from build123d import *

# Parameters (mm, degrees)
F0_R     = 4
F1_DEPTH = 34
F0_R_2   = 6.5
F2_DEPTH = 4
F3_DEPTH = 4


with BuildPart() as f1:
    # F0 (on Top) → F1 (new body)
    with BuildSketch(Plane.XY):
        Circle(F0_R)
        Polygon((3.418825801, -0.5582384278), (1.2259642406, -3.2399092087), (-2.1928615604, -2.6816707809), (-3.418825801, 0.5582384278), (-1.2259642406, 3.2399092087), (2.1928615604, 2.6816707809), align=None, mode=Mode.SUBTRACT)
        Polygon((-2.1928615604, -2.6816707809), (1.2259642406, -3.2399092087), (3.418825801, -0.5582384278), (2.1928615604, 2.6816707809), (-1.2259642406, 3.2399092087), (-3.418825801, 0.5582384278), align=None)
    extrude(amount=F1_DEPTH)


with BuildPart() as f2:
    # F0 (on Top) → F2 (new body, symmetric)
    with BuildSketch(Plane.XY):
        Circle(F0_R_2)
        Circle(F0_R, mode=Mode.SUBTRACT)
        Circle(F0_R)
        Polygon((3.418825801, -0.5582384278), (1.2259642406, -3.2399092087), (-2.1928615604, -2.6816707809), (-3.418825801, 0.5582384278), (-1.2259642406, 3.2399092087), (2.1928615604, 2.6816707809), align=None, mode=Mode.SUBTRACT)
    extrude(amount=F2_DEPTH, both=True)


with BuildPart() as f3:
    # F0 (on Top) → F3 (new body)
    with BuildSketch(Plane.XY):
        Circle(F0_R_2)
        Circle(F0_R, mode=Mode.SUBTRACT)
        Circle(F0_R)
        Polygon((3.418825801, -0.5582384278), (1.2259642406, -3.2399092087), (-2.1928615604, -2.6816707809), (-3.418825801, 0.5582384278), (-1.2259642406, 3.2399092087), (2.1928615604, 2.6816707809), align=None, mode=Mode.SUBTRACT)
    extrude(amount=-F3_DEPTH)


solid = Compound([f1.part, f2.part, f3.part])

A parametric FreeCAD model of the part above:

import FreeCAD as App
import Part
import Sketcher
Q = App.Units.Quantity


def add_polygon(sketch, points):
    """Adds a closed chain of lines whose ends are joined by coincident constraints."""
    first, n = sketch.GeometryCount, len(points)
    for a, b in zip(points, points[1:] + points[:1]):
        sketch.addGeometry(Part.LineSegment(App.Vector(*a, 0), App.Vector(*b, 0)), False)
    for i in range(n):
        sketch.addConstraint(Sketcher.Constraint("Coincident", first + i, 2, first + (i + 1) % n, 1))

doc = App.newDocument("Part")
body = doc.addObject("PartDesign::Body", "Body")

# Sketch on XY plane
sketch1 = body.newObject("Sketcher::SketchObject", "Sketch")
sketch1.AttachmentSupport = (doc.getObject("XY_Plane"), [""])
sketch1.MapMode = "FlatFace"
sketch1.addGeometry(Part.Circle(App.Vector(0, 0, 0), App.Vector(0, 0, 1), 4), False)
sketch1.addConstraint([
    Sketcher.Constraint("Coincident", 0, 3, -1, 1),
    Sketcher.Constraint("Diameter", 0, Q("8 mm")),
])
pad1 = body.newObject("PartDesign::Pad", "Pad")
pad1.Profile = sketch1
pad1.Length = 34
body2 = doc.addObject("PartDesign::Body", "Body001")

# Sketch on XY plane
sketch2 = body2.newObject("Sketcher::SketchObject", "Sketch001")
sketch2.AttachmentSupport = (doc.getObject("XY_Plane001"), [""])
sketch2.MapMode = "FlatFace"
sketch2.addGeometry(Part.Circle(App.Vector(0, 0, 0), App.Vector(0, 0, 1), 6.5), False)  # 0
add_polygon(sketch2, [(2.2, 2.7), (3.4, -0.6), (1.2, -3.2), (-2.2, -2.7), (-3.4, 0.6), (-1.2, 3.2)])  # lines 1-6
sketch2.addConstraint([
    Sketcher.Constraint("Coincident", 0, 3, -1, 1),
    Sketcher.Constraint("Symmetric", 1, 2, 4, 2, -1, 1),
    Sketcher.Constraint("Symmetric", 2, 2, 5, 2, -1, 1),
    Sketcher.Constraint("Symmetric", 3, 2, 6, 2, -1, 1),
    Sketcher.Constraint("Equal", 1, 2),
    Sketcher.Constraint("Equal", 2, 3),
    Sketcher.Constraint("Diameter", 0, Q("13 mm")),
    Sketcher.Constraint("Distance", 1, Q("3.464102 mm")),
    Sketcher.Constraint("DistanceY", 1, 2, -1, 1, Q("0.558238 mm")),
    Sketcher.Constraint("DistanceY", 2, 2, -1, 1, Q("3.239909 mm")),
    Sketcher.Constraint("DistanceX", 3, 2, -1, 1, Q("2.192862 mm")),
])
pad2 = body2.newObject("PartDesign::Pad", "Pad001")
pad2.Profile = sketch2
pad2.Length = 8
pad2.Midplane = True
body3 = doc.addObject("PartDesign::Body", "Body002")

# Sketch on XY plane
sketch3 = body3.newObject("Sketcher::SketchObject", "Sketch002")
sketch3.AttachmentSupport = (doc.getObject("XY_Plane002"), [""])
sketch3.MapMode = "FlatFace"
sketch3.addGeometry(Part.Circle(App.Vector(0, 0, 0), App.Vector(0, 0, 1), 6.5), False)  # 0
add_polygon(sketch3, [(2.2, 2.7), (3.4, -0.6), (1.2, -3.2), (-2.2, -2.7), (-3.4, 0.6), (-1.2, 3.2)])  # lines 1-6
sketch3.addConstraint([
    Sketcher.Constraint("Coincident", 0, 3, -1, 1),
    Sketcher.Constraint("Symmetric", 1, 2, 4, 2, -1, 1),
    Sketcher.Constraint("Symmetric", 2, 2, 5, 2, -1, 1),
    Sketcher.Constraint("Symmetric", 3, 2, 6, 2, -1, 1),
    Sketcher.Constraint("Equal", 1, 2),
    Sketcher.Constraint("Equal", 2, 3),
    Sketcher.Constraint("Diameter", 0, Q("13 mm")),
    Sketcher.Constraint("Distance", 1, Q("3.464102 mm")),
    Sketcher.Constraint("DistanceY", 1, 2, -1, 1, Q("0.558238 mm")),
    Sketcher.Constraint("DistanceY", 2, 2, -1, 1, Q("3.239909 mm")),
    Sketcher.Constraint("DistanceX", 3, 2, -1, 1, Q("2.192862 mm")),
])
pad3 = body3.newObject("PartDesign::Pad", "Pad002")
pad3.Profile = sketch3
pad3.Length = 4
pad3.Reversed = True

doc.recompute()
